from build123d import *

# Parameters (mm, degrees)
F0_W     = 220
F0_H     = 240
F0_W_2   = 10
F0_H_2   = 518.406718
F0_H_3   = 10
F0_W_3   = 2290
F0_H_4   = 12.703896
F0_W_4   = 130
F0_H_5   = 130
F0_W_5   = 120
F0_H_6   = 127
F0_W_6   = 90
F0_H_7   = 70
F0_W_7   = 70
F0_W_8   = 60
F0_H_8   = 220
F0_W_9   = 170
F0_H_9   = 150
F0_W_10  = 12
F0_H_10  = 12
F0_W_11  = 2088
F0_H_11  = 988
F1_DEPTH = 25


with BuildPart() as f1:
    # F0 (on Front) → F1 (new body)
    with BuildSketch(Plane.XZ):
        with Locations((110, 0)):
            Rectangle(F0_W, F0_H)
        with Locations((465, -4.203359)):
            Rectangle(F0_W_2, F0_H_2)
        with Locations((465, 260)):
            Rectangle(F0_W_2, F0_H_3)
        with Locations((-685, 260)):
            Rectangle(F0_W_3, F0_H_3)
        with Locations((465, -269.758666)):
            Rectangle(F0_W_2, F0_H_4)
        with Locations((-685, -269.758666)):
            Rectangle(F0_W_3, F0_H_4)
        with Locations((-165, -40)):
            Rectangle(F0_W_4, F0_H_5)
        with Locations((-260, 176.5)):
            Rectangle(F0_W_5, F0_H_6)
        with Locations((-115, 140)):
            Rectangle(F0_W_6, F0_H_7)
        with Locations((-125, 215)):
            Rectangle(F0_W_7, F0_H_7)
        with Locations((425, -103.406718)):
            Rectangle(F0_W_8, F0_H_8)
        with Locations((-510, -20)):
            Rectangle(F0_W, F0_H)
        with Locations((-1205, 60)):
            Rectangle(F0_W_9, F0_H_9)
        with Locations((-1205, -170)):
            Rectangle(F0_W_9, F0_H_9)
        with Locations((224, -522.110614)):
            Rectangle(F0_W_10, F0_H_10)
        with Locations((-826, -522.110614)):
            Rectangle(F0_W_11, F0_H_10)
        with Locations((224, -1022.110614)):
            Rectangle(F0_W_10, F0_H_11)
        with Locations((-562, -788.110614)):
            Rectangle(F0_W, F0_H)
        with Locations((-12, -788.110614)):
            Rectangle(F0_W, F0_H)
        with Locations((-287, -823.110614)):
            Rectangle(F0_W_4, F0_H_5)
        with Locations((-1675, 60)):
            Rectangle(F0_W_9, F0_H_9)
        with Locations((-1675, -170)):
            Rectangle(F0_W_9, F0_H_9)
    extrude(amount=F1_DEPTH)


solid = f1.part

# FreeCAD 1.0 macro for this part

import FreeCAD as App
import Part
import Sketcher
from FreeCAD import Vector
Q = App.Units.Quantity


def add_polygon(sketch, points):
    """Adds a closed chain of lines whose ends are joined by coincident constraints."""
    first, n = sketch.GeometryCount, len(points)
    for a, b in zip(points, points[1:] + points[:1]):
        sketch.addGeometry(Part.LineSegment(App.Vector(*a, 0), App.Vector(*b, 0)), False)
    for i in range(n):
        sketch.addConstraint(Sketcher.Constraint("Coincident", first + i, 2, first + (i + 1) % n, 1))

doc = App.newDocument("Part")
body = doc.addObject("PartDesign::Body", "Body")
body.AllowCompound = True

# Sketch on XZ plane
sketch1 = doc.addObject("Sketcher::SketchObject", "Sketch")
body.addObject(sketch1)
sketch1.AttachmentSupport = (doc.XZ_Plane, [""])
sketch1.MapMode = "FlatFace"
add_polygon(sketch1, [(0, 120), (0, -120), (220, -120), (220, 120)])  # lines 0-3
add_polygon(sketch1, [(470, 265), (-1830, 265), (-1830, 255), (460, 255), (460, -263.406718), (-1830, -263.406718), (-1830, -276.110614), (470, -276.110614)])  # lines 4-11
add_polygon(sketch1, [(-230, 25), (-230, -105), (-100, -105), (-100, 25)])  # lines 12-15
add_polygon(sketch1, [(-320, 240), (-320, 113), (-200, 113), (-200, 240)])  # lines 16-19
add_polygon(sketch1, [(-160, 175), (-160, 105), (-70, 105), (-70, 175)])  # lines 20-23
add_polygon(sketch1, [(-160, 250), (-160, 180), (-90, 180), (-90, 250)])  # lines 24-27
add_polygon(sketch1, [(395, 6.593282), (395, -213.406718), (455, -213.406718), (455, 6.593282)])  # lines 28-31
add_polygon(sketch1, [(-620, 100), (-620, -140), (-400, -140), (-400, 100)])  # lines 32-35
add_polygon(sketch1, [(-1290, 135), (-1290, -15), (-1120, -15), (-1120, 135)])  # lines 36-39
add_polygon(sketch1, [(-1290, -95), (-1290, -245), (-1120, -245), (-1120, -95)])  # lines 40-43
add_polygon(sketch1, [(230, -516.110614), (-1870, -516.110614), (-1870, -528.110614), (218, -528.110614), (218, -1516.110614), (230, -1516.110614)])  # lines 44-49
add_polygon(sketch1, [(-672, -668.110614), (-672, -908.110614), (-452, -908.110614), (-452, -668.110614)])  # lines 50-53
add_polygon(sketch1, [(-122, -668.110614), (-122, -908.110614), (98, -908.110614), (98, -668.110614)])  # lines 54-57
add_polygon(sketch1, [(-352, -758.110614), (-352, -888.110614), (-222, -888.110614), (-222, -758.110614)])  # lines 58-61
add_polygon(sketch1, [(-1760, 135), (-1760, -15), (-1590, -15), (-1590, 135)])  # lines 62-65
add_polygon(sketch1, [(-1760, -95), (-1760, -245), (-1590, -245), (-1590, -95)])  # lines 66-69
sketch1.addConstraint(Sketcher.Constraint("Vertical", 0))
sketch1.addConstraint(Sketcher.Constraint("Horizontal", 1))
sketch1.addConstraint(Sketcher.Constraint("Vertical", 2))
sketch1.addConstraint(Sketcher.Constraint("Horizontal", 3))
sketch1.addConstraint(Sketcher.Constraint("Horizontal", 4))
sketch1.addConstraint(Sketcher.Constraint("Vertical", 5))
sketch1.addConstraint(Sketcher.Constraint("Horizontal", 6))
sketch1.addConstraint(Sketcher.Constraint("Vertical", 7))
sketch1.addConstraint(Sketcher.Constraint("Horizontal", 8))
sketch1.addConstraint(Sketcher.Constraint("Vertical", 9))
sketch1.addConstraint(Sketcher.Constraint("Horizontal", 10))
sketch1.addConstraint(Sketcher.Constraint("Vertical", 11))
sketch1.addConstraint(Sketcher.Constraint("Vertical", 12))
sketch1.addConstraint(Sketcher.Constraint("Horizontal", 13))
sketch1.addConstraint(Sketcher.Constraint("Vertical", 14))
sketch1.addConstraint(Sketcher.Constraint("Horizontal", 15))
sketch1.addConstraint(Sketcher.Constraint("Vertical", 16))
sketch1.addConstraint(Sketcher.Constraint("Horizontal", 17))
sketch1.addConstraint(Sketcher.Constraint("Vertical", 18))
sketch1.addConstraint(Sketcher.Constraint("Horizontal", 19))
sketch1.addConstraint(Sketcher.Constraint("Vertical", 20))
sketch1.addConstraint(Sketcher.Constraint("Horizontal", 21))
sketch1.addConstraint(Sketcher.Constraint("Vertical", 22))
sketch1.addConstraint(Sketcher.Constraint("Horizontal", 23))
sketch1.addConstraint(Sketcher.Constraint("Vertical", 24))
sketch1.addConstraint(Sketcher.Constraint("Horizontal", 25))
sketch1.addConstraint(Sketcher.Constraint("Vertical", 26))
sketch1.addConstraint(Sketcher.Constraint("Horizontal", 27))
sketch1.addConstraint(Sketcher.Constraint("Vertical", 28))
sketch1.addConstraint(Sketcher.Constraint("Horizontal", 29))
sketch1.addConstraint(Sketcher.Constraint("Vertical", 30))
sketch1.addConstraint(Sketcher.Constraint("Horizontal", 31))
sketch1.addConstraint(Sketcher.Constraint("Vertical", 32))
sketch1.addConstraint(Sketcher.Constraint("Horizontal", 33))
sketch1.addConstraint(Sketcher.Constraint("Vertical", 34))
sketch1.addConstraint(Sketcher.Constraint("Horizontal", 35))
sketch1.addConstraint(Sketcher.Constraint("Vertical", 36))
sketch1.addConstraint(Sketcher.Constraint("Horizontal", 37))
sketch1.addConstraint(Sketcher.Constraint("Vertical", 38))
sketch1.addConstraint(Sketcher.Constraint("Horizontal", 39))
sketch1.addConstraint(Sketcher.Constraint("Vertical", 40))
sketch1.addConstraint(Sketcher.Constraint("Horizontal", 41))
sketch1.addConstraint(Sketcher.Constraint("Vertical", 42))
sketch1.addConstraint(Sketcher.Constraint("Horizontal", 43))
sketch1.addConstraint(Sketcher.Constraint("Horizontal", 44))
sketch1.addConstraint(Sketcher.Constraint("Vertical", 45))
sketch1.addConstraint(Sketcher.Constraint("Horizontal", 46))
sketch1.addConstraint(Sketcher.Constraint("Vertical", 47))
sketch1.addConstraint(Sketcher.Constraint("Horizontal", 48))
sketch1.addConstraint(Sketcher.Constraint("Vertical", 49))
sketch1.addConstraint(Sketcher.Constraint("Vertical", 50))
sketch1.addConstraint(Sketcher.Constraint("Horizontal", 51))
sketch1.addConstraint(Sketcher.Constraint("Vertical", 52))
sketch1.addConstraint(Sketcher.Constraint("Horizontal", 53))
sketch1.addConstraint(Sketcher.Constraint("Vertical", 54))
sketch1.addConstraint(Sketcher.Constraint("Horizontal", 55))
sketch1.addConstraint(Sketcher.Constraint("Vertical", 56))
sketch1.addConstraint(Sketcher.Constraint("Horizontal", 57))
sketch1.addConstraint(Sketcher.Constraint("Vertical", 58))
sketch1.addConstraint(Sketcher.Constraint("Horizontal", 59))
sketch1.addConstraint(Sketcher.Constraint("Vertical", 60))
sketch1.addConstraint(Sketcher.Constraint("Horizontal", 61))
sketch1.addConstraint(Sketcher.Constraint("Vertical", 62))
sketch1.addConstraint(Sketcher.Constraint("Horizontal", 63))
sketch1.addConstraint(Sketcher.Constraint("Vertical", 64))
sketch1.addConstraint(Sketcher.Constraint("Horizontal", 65))
sketch1.addConstraint(Sketcher.Constraint("Vertical", 66))
sketch1.addConstraint(Sketcher.Constraint("Horizontal", 67))
sketch1.addConstraint(Sketcher.Constraint("Vertical", 68))
sketch1.addConstraint(Sketcher.Constraint("Horizontal", 69))
sketch1.addConstraint(Sketcher.Constraint("Symmetric", 0, 2, 3, 2, -1, 1))
sketch1.addConstraint(Sketcher.Constraint("Horizontal", 51, 2, 54, 2))
sketch1.addConstraint(Sketcher.Constraint("Horizontal", 53, 2, 56, 2))
sketch1.addConstraint(Sketcher.Constraint("Horizontal", 37, 2, 62, 2))
sketch1.addConstraint(Sketcher.Constraint("Horizontal", 39, 2, 64, 2))
sketch1.addConstraint(Sketcher.Constraint("Horizontal", 41, 2, 66, 2))
sketch1.addConstraint(Sketcher.Constraint("Horizontal", 43, 2, 68, 2))
sketch1.addConstraint(Sketcher.Constraint("Vertical", 5, 2, 8, 2))
sketch1.addConstraint(Sketcher.Constraint("Vertical", 23, 2, 24, 2))
sketch1.addConstraint(Sketcher.Constraint("Vertical", 39, 2, 40, 2))
sketch1.addConstraint(Sketcher.Constraint("Vertical", 38, 2, 41, 2))
sketch1.addConstraint(Sketcher.Constraint("Vertical", 65, 2, 66, 2))
sketch1.addConstraint(Sketcher.Constraint("Vertical", 64, 2, 67, 2))
sketch1.addConstraint(Sketcher.Constraint("Equal", 3, 33))
sketch1.addConstraint(Sketcher.Constraint("Equal", 35, 51))
sketch1.addConstraint(Sketcher.Constraint("Equal", 53, 55))
sketch1.addConstraint(Sketcher.Constraint("Equal", 15, 59))
sketch1.addConstraint(Sketcher.Constraint("Equal", 43, 63))
sketch1.addConstraint(Sketcher.Constraint("Equal", 61, 12))
sketch1.addConstraint(Sketcher.Constraint("Equal", 27, 20))
sketch1.addConstraint(Sketcher.Constraint("Equal", 22, 24))
sketch1.addConstraint(Sketcher.Constraint("Equal", 57, 28))
sketch1.addConstraint(Sketcher.Constraint("Equal", 2, 32))
sketch1.addConstraint(Sketcher.Constraint("Equal", 38, 40))
sketch1.addConstraint(Sketcher.Constraint("Equal", 48, 45))
sketch1.addConstraint(Sketcher.Constraint("Equal", 34, 50))
sketch1.addConstraint(Sketcher.Constraint("Equal", 14, 58))
sketch1.addConstraint(Sketcher.Constraint("DistanceX", 1, 1, 1, 2, Q("220 mm")))
sketch1.addConstraint(Sketcher.Constraint("DistanceX", 4, 2, 4, 1, Q("2300 mm")))
sketch1.addConstraint(Sketcher.Constraint("DistanceX", 6, 1, 6, 2, Q("2290 mm")))
sketch1.addConstraint(Sketcher.Constraint("DistanceX", 13, 1, 13, 2, Q("130 mm")))
sketch1.addConstraint(Sketcher.Constraint("DistanceX", 17, 1, 17, 2, Q("120 mm")))
sketch1.addConstraint(Sketcher.Constraint("DistanceX", 21, 1, 21, 2, Q("90 mm")))
sketch1.addConstraint(Sketcher.Constraint("DistanceX", 25, 1, 25, 2, Q("70 mm")))
sketch1.addConstraint(Sketcher.Constraint("DistanceX", 29, 1, 29, 2, Q("60 mm")))
sketch1.addConstraint(Sketcher.Constraint("DistanceX", 37, 1, 37, 2, Q("170 mm")))
sketch1.addConstraint(Sketcher.Constraint("DistanceX", 44, 2, 44, 1, Q("2100 mm")))
sketch1.addConstraint(Sketcher.Constraint("DistanceX", 46, 1, 46, 2, Q("2088 mm")))
sketch1.addConstraint(Sketcher.Constraint("DistanceY", 0, 2, 0, 1, Q("240 mm")))
sketch1.addConstraint(Sketcher.Constraint("DistanceY", 5, 2, 5, 1, Q("10 mm")))
sketch1.addConstraint(Sketcher.Constraint("DistanceY", 16, 2, 16, 1, Q("127 mm")))
sketch1.addConstraint(Sketcher.Constraint("DistanceY", 36, 2, 36, 1, Q("150 mm")))
sketch1.addConstraint(Sketcher.Constraint("DistanceY", 47, 2, 47, 1, Q("988 mm")))
sketch1.addConstraint(Sketcher.Constraint("DistanceX", 4, 2, -1, 1, Q("1830 mm")))
sketch1.addConstraint(Sketcher.Constraint("DistanceY", -1, 1, 4, 2, Q("265 mm")))
sketch1.addConstraint(Sketcher.Constraint("DistanceX", 12, 2, -1, 1, Q("230 mm")))
sketch1.addConstraint(Sketcher.Constraint("DistanceY", 12, 2, -1, 1, Q("105 mm")))
sketch1.addConstraint(Sketcher.Constraint("DistanceX", 16, 2, -1, 1, Q("320 mm")))
sketch1.addConstraint(Sketcher.Constraint("DistanceY", -1, 1, 16, 2, Q("113 mm")))
sketch1.addConstraint(Sketcher.Constraint("DistanceX", 20, 2, -1, 1, Q("160 mm")))
sketch1.addConstraint(Sketcher.Constraint("DistanceY", -1, 1, 20, 2, Q("105 mm")))
sketch1.addConstraint(Sketcher.Constraint("DistanceY", -1, 1, 24, 2, Q("180 mm")))
sketch1.addConstraint(Sketcher.Constraint("DistanceX", -1, 1, 28, 2, Q("395 mm")))
sketch1.addConstraint(Sketcher.Constraint("DistanceX", 32, 2, -1, 1, Q("620 mm")))
sketch1.addConstraint(Sketcher.Constraint("DistanceY", 32, 2, -1, 1, Q("140 mm")))
sketch1.addConstraint(Sketcher.Constraint("DistanceX", 36, 2, -1, 1, Q("1290 mm")))
sketch1.addConstraint(Sketcher.Constraint("DistanceY", 36, 2, -1, 1, Q("15 mm")))
sketch1.addConstraint(Sketcher.Constraint("DistanceY", 40, 2, -1, 1, Q("245 mm")))
sketch1.addConstraint(Sketcher.Constraint("DistanceX", 44, 2, -1, 1, Q("1870 mm")))
sketch1.addConstraint(Sketcher.Constraint("DistanceX", 50, 2, -1, 1, Q("672 mm")))
sketch1.addConstraint(Sketcher.Constraint("DistanceX", 54, 2, -1, 1, Q("122 mm")))
sketch1.addConstraint(Sketcher.Constraint("DistanceX", 58, 2, -1, 1, Q("352 mm")))
sketch1.addConstraint(Sketcher.Constraint("DistanceX", 62, 2, -1, 1, Q("1760 mm")))
sketch1.addConstraint(Sketcher.Constraint("DistanceY", 7, 2, 7, 1, Q("518.406718 mm")))
sketch1.addConstraint(Sketcher.Constraint("DistanceY", 9, 2, 9, 1, Q("12.703896 mm")))
sketch1.addConstraint(Sketcher.Constraint("DistanceY", 28, 2, -1, 1, Q("213.406718 mm")))
sketch1.addConstraint(Sketcher.Constraint("DistanceY", 44, 2, -1, 1, Q("516.110614 mm")))
sketch1.addConstraint(Sketcher.Constraint("DistanceY", 50, 2, -1, 1, Q("908.110614 mm")))
sketch1.addConstraint(Sketcher.Constraint("DistanceY", 58, 2, -1, 1, Q("888.110614 mm")))
pad1 = doc.addObject("PartDesign::Pad", "Pad")
body.addObject(pad1)
pad1.Profile = sketch1
pad1.Length = 25

doc.recompute()
